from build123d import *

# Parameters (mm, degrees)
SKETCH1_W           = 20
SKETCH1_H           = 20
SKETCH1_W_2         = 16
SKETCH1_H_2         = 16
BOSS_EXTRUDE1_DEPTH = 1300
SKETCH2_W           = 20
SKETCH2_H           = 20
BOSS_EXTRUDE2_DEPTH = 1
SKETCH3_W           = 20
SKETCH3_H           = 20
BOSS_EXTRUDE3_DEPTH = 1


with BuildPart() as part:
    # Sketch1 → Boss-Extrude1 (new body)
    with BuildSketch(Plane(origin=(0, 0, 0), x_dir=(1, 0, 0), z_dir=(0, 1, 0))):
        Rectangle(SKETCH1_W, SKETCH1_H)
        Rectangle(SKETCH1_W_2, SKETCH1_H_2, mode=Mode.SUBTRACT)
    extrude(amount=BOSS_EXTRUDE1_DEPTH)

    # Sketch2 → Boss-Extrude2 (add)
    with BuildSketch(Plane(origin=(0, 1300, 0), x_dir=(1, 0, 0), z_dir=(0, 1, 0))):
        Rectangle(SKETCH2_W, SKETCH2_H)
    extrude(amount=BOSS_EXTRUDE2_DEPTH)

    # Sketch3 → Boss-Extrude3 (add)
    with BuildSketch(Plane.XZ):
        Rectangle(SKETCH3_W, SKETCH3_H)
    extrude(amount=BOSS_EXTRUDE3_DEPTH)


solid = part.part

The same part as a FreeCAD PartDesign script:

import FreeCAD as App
import Part
import Sketcher
from FreeCAD import Vector


def add_polygon(sketch, points):
    """Adds a closed chain of lines whose ends are joined by coincident constraints."""
    first, n = sketch.GeometryCount, len(points)
    for a, b in zip(points, points[1:] + points[:1]):
        sketch.addGeometry(Part.LineSegment(App.Vector(*a, 0), App.Vector(*b, 0)), False)
    for i in range(n):
        sketch.addConstraint(Sketcher.Constraint("Coincident", first + i, 2, first + (i + 1) % n, 1))

doc = App.newDocument("Part")
body = doc.addObject("PartDesign::Body", "Body")

# Sketch on XZ plane
sketch1 = body.newObject("Sketcher::SketchObject", "Sketch")
sketch1.AttachmentSupport = (doc.getObject("XZ_Plane"), [""])
sketch1.MapMode = "FlatFace"
add_polygon(sketch1, [(-10, -10), (-10, 10), (10, 10), (10, -10)])  # lines 0-3
add_polygon(sketch1, [(8, 8), (-8, 8), (-8, -8), (8, -8)])  # lines 4-7
sketch1.addConstraint([
    Sketcher.Constraint("Vertical", 0),
    Sketcher.Constraint("Horizontal", 1),
    Sketcher.Constraint("Vertical", 2),
    Sketcher.Constraint("Horizontal", 3),
    Sketcher.Constraint("Horizontal", 4),
    Sketcher.Constraint("Vertical", 5),
    Sketcher.Constraint("Horizontal", 6),
    Sketcher.Constraint("Vertical", 7),
    Sketcher.Constraint("Symmetric", 0, 2, 2, 2, -1, 1),
    Sketcher.Constraint("Symmetric", 4, 2, 6, 2, -1, 1),
    Sketcher.Constraint("Equal", 3, 0),
    Sketcher.Constraint("Equal", 6, 5),
    Sketcher.Constraint("DistanceX", 1, 1, 1, 2, 20.0),
    Sketcher.Constraint("DistanceX", 4, 2, 4, 1, 16.0),
])
pad1 = body.newObject("PartDesign::Pad", "Pad")
pad1.Profile = sketch1
pad1.Length = 1300
pad1.Reversed = True

# Sketch on XZ plane
sketch2 = body.newObject("Sketcher::SketchObject", "Sketch001")
sketch2.AttachmentSupport = (doc.getObject("XZ_Plane"), [""])
sketch2.MapMode = "FlatFace"
sketch2.AttachmentOffset = App.Placement(Vector(0, 0, -1300), App.Rotation())
add_polygon(sketch2, [(-10, -10), (-10, 10), (10, 10), (10, -10)])  # lines 0-3
sketch2.addConstraint([
    Sketcher.Constraint("Vertical", 0),
    Sketcher.Constraint("Horizontal", 1),
    Sketcher.Constraint("Vertical", 2),
    Sketcher.Constraint("Horizontal", 3),
    Sketcher.Constraint("Symmetric", 0, 2, 2, 2, -1, 1),
    Sketcher.Constraint("Equal", 3, 0),
    Sketcher.Constraint("DistanceX", 1, 1, 1, 2, 20.0),
])
pad2 = body.newObject("PartDesign::Pad", "Pad001")
pad2.Profile = sketch2
pad2.Length = 1
pad2.Reversed = True

# Sketch on XZ plane
sketch3 = body.newObject("Sketcher::SketchObject", "Sketch002")
sketch3.AttachmentSupport = (doc.getObject("XZ_Plane"), [""])
sketch3.MapMode = "FlatFace"
add_polygon(sketch3, [(-10, 10), (-10, -10), (10, -10), (10, 10)])  # lines 0-3
sketch3.addConstraint([
    Sketcher.Constraint("Vertical", 0),
    Sketcher.Constraint("Horizontal", 1),
    Sketcher.Constraint("Vertical", 2),
    Sketcher.Constraint("Horizontal", 3),
    Sketcher.Constraint("Symmetric", 0, 2, 2, 2, -1, 1),
    Sketcher.Constraint("Equal", 3, 0),
    Sketcher.Constraint("DistanceX", 1, 1, 1, 2, 20.0),
])
pad3 = body.newObject("PartDesign::Pad", "Pad002")
pad3.Profile = sketch3
pad3.Length = 1

doc.recompute()
